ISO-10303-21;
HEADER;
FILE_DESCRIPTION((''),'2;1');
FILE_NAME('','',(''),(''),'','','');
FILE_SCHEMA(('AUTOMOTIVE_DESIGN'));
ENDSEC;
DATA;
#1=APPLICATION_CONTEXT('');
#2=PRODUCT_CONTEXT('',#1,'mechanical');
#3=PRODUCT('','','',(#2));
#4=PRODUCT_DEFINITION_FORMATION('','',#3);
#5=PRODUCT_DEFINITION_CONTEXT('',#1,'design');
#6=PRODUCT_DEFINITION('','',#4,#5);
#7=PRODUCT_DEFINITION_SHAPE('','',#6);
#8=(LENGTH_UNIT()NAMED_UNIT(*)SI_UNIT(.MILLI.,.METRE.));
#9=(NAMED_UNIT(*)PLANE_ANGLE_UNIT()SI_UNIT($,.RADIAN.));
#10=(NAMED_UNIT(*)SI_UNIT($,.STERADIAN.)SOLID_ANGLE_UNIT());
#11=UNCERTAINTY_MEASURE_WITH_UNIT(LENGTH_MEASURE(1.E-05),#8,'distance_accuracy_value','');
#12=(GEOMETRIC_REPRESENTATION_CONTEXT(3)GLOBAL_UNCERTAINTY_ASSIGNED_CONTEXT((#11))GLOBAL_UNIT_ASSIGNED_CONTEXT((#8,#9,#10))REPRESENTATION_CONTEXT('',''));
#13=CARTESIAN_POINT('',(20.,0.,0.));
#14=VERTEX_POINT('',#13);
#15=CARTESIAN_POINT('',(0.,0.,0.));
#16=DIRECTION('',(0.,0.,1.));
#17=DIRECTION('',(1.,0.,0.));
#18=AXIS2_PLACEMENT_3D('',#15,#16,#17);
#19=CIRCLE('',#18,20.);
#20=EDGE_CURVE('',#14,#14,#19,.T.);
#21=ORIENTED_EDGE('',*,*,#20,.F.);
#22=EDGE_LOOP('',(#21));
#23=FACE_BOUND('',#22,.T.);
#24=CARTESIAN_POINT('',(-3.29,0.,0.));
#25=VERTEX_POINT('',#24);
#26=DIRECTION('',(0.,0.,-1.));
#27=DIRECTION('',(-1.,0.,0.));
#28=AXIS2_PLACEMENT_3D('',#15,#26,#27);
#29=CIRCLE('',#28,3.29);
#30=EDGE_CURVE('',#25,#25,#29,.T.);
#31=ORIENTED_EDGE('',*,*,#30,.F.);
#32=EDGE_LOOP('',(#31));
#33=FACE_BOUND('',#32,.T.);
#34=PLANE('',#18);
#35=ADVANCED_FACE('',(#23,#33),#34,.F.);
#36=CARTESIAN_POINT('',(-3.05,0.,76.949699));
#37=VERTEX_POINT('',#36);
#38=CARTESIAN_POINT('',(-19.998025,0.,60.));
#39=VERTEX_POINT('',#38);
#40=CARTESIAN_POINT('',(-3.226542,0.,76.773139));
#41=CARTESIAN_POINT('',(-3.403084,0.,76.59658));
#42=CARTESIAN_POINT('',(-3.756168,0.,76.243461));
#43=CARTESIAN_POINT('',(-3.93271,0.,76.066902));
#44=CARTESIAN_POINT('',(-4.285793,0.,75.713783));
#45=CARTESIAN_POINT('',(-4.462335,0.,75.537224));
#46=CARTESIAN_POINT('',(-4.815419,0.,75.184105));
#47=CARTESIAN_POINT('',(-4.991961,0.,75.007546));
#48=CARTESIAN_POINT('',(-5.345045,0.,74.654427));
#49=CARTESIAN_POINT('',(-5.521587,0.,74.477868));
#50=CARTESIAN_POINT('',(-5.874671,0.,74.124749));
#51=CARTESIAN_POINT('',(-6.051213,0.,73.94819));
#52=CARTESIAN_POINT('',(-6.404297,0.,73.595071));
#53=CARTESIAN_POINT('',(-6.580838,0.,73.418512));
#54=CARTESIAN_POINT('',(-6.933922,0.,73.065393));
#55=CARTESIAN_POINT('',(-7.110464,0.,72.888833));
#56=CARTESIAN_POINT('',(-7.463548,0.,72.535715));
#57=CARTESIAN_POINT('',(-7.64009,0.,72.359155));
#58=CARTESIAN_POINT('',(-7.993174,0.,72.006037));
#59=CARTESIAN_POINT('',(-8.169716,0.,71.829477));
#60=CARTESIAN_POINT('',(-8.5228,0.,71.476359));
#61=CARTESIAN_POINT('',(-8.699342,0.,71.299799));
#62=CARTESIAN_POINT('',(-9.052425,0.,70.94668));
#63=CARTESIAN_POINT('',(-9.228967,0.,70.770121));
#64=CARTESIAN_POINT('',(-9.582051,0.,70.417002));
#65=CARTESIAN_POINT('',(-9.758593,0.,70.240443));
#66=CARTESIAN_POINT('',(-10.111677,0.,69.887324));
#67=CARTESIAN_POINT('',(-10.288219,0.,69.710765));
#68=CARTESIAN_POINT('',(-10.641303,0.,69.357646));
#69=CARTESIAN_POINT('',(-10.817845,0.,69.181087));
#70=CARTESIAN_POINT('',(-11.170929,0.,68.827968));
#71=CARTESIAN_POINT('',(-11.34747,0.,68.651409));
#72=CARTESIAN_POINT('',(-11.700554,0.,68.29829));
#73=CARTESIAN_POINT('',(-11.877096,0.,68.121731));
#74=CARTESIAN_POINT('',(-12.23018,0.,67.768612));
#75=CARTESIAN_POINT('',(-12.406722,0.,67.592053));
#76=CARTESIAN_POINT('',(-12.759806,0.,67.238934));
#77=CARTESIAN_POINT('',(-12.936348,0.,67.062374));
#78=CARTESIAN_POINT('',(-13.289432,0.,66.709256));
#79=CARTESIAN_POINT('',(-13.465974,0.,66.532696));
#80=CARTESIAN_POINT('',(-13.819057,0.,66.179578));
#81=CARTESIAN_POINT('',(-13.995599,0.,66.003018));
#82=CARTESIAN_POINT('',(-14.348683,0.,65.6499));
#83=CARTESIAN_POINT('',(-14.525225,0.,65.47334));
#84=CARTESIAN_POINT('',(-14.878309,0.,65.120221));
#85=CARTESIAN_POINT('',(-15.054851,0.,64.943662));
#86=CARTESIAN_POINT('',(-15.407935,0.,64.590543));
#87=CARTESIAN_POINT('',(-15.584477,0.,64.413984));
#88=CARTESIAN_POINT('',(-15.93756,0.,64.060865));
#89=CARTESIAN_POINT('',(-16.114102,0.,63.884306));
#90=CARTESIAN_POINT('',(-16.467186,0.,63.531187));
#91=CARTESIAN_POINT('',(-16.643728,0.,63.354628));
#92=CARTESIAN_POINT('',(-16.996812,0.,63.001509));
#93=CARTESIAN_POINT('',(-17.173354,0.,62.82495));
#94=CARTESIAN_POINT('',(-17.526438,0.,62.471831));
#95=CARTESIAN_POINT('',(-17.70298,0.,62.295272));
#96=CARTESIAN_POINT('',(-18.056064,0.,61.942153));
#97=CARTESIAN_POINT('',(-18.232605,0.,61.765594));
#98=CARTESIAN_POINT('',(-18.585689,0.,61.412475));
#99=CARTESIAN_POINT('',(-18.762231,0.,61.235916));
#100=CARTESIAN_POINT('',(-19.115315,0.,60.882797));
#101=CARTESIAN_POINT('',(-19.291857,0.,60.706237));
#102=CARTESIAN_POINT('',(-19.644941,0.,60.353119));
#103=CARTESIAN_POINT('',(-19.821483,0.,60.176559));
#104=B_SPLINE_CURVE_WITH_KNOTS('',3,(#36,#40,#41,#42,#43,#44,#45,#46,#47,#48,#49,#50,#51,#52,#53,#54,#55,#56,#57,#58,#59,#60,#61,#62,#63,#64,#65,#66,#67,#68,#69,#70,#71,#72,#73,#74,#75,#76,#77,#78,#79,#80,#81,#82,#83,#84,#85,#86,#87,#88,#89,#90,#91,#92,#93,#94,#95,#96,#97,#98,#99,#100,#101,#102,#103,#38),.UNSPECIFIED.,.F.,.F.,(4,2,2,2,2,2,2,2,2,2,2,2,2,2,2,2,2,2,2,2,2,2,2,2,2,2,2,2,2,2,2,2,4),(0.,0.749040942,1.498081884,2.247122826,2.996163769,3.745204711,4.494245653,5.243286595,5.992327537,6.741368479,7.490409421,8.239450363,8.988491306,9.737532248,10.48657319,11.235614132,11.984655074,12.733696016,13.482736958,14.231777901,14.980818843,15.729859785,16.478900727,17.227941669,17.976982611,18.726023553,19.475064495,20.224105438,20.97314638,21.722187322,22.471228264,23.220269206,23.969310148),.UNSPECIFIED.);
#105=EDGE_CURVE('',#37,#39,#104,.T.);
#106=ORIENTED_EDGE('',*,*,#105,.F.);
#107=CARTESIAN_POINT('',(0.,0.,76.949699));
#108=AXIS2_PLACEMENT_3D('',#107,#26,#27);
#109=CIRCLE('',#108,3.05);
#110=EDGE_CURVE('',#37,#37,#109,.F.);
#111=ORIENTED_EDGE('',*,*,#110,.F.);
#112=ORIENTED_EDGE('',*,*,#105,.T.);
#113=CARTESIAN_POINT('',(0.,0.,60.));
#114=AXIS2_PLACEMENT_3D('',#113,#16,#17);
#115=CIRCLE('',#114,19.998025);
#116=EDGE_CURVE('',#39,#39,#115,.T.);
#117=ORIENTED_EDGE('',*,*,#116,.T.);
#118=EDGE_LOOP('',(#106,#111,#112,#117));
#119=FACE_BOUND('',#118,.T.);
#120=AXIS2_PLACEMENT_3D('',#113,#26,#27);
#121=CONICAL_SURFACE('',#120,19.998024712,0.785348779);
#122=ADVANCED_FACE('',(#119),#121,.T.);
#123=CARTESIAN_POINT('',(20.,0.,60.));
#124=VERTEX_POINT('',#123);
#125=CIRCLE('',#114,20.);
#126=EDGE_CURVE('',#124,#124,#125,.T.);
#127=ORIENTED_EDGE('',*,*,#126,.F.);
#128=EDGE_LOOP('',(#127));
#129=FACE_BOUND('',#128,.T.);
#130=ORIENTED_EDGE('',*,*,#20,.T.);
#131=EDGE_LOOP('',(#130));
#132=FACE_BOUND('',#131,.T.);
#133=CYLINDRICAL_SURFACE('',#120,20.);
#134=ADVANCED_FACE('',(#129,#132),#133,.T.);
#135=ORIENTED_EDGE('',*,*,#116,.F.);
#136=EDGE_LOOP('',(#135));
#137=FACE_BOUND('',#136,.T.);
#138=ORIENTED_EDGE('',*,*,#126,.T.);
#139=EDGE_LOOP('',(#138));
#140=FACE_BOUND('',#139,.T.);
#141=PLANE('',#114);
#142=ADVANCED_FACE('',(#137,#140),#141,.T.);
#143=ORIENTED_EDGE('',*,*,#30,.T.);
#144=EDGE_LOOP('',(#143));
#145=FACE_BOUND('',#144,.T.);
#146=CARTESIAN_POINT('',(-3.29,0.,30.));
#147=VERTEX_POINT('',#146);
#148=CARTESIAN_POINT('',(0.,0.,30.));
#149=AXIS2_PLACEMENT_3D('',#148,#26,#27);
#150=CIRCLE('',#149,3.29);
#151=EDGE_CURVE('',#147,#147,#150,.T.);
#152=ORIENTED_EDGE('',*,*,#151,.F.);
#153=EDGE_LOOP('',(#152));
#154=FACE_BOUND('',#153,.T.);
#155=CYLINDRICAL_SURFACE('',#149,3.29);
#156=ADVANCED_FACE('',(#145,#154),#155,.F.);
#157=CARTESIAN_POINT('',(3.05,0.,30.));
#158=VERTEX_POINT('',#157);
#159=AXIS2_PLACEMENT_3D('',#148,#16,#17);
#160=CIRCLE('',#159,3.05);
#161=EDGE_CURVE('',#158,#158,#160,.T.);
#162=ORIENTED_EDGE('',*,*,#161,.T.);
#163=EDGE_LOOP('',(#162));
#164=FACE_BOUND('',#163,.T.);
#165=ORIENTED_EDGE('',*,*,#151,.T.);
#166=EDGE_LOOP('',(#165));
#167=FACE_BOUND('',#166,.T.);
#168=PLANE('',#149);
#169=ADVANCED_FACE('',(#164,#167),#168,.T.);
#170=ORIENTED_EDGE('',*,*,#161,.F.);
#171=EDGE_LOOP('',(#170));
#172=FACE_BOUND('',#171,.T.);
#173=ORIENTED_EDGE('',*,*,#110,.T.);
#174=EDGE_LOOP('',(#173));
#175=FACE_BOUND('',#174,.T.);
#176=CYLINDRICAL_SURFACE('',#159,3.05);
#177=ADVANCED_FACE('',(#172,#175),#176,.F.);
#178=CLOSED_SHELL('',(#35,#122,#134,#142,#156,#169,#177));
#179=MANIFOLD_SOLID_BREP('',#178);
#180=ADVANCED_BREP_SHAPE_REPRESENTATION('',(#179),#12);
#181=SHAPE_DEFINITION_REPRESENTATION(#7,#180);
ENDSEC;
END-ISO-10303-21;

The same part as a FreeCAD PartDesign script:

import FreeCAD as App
import Part
import Sketcher
from FreeCAD import Vector


def add_polygon(sketch, points):
    """Adds a closed chain of lines whose ends are joined by coincident constraints."""
    first, n = sketch.GeometryCount, len(points)
    for a, b in zip(points, points[1:] + points[:1]):
        sketch.addGeometry(Part.LineSegment(App.Vector(*a, 0), App.Vector(*b, 0)), False)
    for i in range(n):
        sketch.addConstraint(Sketcher.Constraint("Coincident", first + i, 2, first + (i + 1) % n, 1))

doc = App.newDocument("Part")
params = doc.addObject("Spreadsheet::Sheet", "Params")
for row, (alias, value) in enumerate([
    ("sketch1_diameter", "40 mm"),
    ("pad1_length", "60 mm"),
    ("sketch2_diameter", "6.1 mm"),
    ("pocket1_length", "30 mm"),
    ("sketch3_diameter", "6.58 mm"),
    ("pocket2_length", "30 mm"),
    ("sketch4_height", "20 mm"),
    ("revolution_angle", "360 deg"),
    ("sketch5_diameter", "6.1 mm"),
    ("pocket3_length", "100 mm"),
], start=1):
    params.set(f"A{row}", alias)
    params.set(f"B{row}", "=" + value)
    params.setAlias(f"B{row}", alias)

body = doc.addObject("PartDesign::Body", "Body")

# Sketch on XY plane
sketch1 = body.newObject("Sketcher::SketchObject", "Sketch")
sketch1.AttachmentSupport = (doc.getObject("XY_Plane"), [""])
sketch1.MapMode = "FlatFace"
sketch1.addGeometry(Part.Circle(Vector(0, 0, 0), Vector(0, 0, 1), 20), False)
sketch1.addConstraint(Sketcher.Constraint("Coincident", 0, 3, -1, 1))
sketch1.addConstraint(Sketcher.Constraint("Diameter", 0, 40.0))
sketch1.setExpression("Constraints[1]", "Params.sketch1_diameter")
pad1 = body.newObject("PartDesign::Pad", "Pad")
pad1.Profile = sketch1
pad1.setExpression("Length", "Params.pad1_length")

# Sketch on XY plane
sketch2 = body.newObject("Sketcher::SketchObject", "Sketch001")
sketch2.AttachmentSupport = (doc.getObject("XY_Plane"), [""])
sketch2.MapMode = "FlatFace"
sketch2.AttachmentOffset = App.Placement(Vector(0, 0, 60), App.Rotation())
sketch2.addGeometry(Part.Circle(Vector(0, 0, 0), Vector(0, 0, 1), 3), False)
sketch2.addConstraint(Sketcher.Constraint("Coincident", 0, 3, -1, 1))
sketch2.addConstraint(Sketcher.Constraint("Diameter", 0, 6.1))
sketch2.setExpression("Constraints[1]", "Params.sketch2_diameter")
pocket1 = body.newObject("PartDesign::Pocket", "Pocket")
pocket1.Profile = sketch2
pocket1.setExpression("Length", "Params.pocket1_length")

# Sketch on XY plane
sketch3 = body.newObject("Sketcher::SketchObject", "Sketch002")
sketch3.AttachmentSupport = (doc.getObject("XY_Plane"), [""])
sketch3.MapMode = "FlatFace"
sketch3.addGeometry(Part.Circle(Vector(0, 0, 0), Vector(0, 0, 1), 3.3), False)
sketch3.addConstraint(Sketcher.Constraint("Coincident", 0, 3, -1, 1))
sketch3.addConstraint(Sketcher.Constraint("Diameter", 0, 6.58))
sketch3.setExpression("Constraints[1]", "Params.sketch3_diameter")
pocket2 = body.newObject("PartDesign::Pocket", "Pocket001")
pocket2.Profile = sketch3
pocket2.setExpression("Length", "Params.pocket2_length")
pocket2.Reversed = True

# Sketch on YZ plane
sketch4 = body.newObject("Sketcher::SketchObject", "Sketch003")
sketch4.AttachmentSupport = (doc.getObject("YZ_Plane"), [""])
sketch4.MapMode = "FlatFace"
add_polygon(sketch4, [(20, 60), (0, 80), (0, 60)])  # lines 0-2
sketch4.addConstraint(Sketcher.Constraint("Vertical", 1))
sketch4.addConstraint(Sketcher.Constraint("Horizontal", 2))
sketch4.addConstraint(Sketcher.Constraint("PointOnObject", 0, 2, -2))
sketch4.addConstraint(Sketcher.Constraint("DistanceY", 1, 2, 1, 1, 20.0))
sketch4.addConstraint(Sketcher.Constraint("DistanceY", -1, 1, 0, 2, 80.0))
sketch4.addConstraint(Sketcher.Constraint("DistanceX", 2, 1, 2, 2, 19.998025))
sketch4.setExpression("Constraints[6]", "Params.sketch4_height")
revolution = body.newObject("PartDesign::Revolution", "Revolution")
revolution.Profile = sketch4
revolution.ReferenceAxis = (sketch4, ["V_Axis"])
revolution.setExpression("Angle", "Params.revolution_angle")

# Sketch on XY plane
sketch5 = body.newObject("Sketcher::SketchObject", "Sketch004")
sketch5.AttachmentSupport = (doc.getObject("XY_Plane"), [""])
sketch5.MapMode = "FlatFace"
sketch5.AttachmentOffset = App.Placement(Vector(0, 0, 100), App.Rotation())
sketch5.addGeometry(Part.Circle(Vector(0, 0, 0), Vector(0, 0, 1), 3), False)
sketch5.addConstraint(Sketcher.Constraint("Coincident", 0, 3, -1, 1))
sketch5.addConstraint(Sketcher.Constraint("Diameter", 0, 6.1))
sketch5.setExpression("Constraints[1]", "Params.sketch5_diameter")
pocket3 = body.newObject("PartDesign::Pocket", "Pocket002")
pocket3.Profile = sketch5
pocket3.setExpression("Length", "Params.pocket3_length")

doc.recompute()
